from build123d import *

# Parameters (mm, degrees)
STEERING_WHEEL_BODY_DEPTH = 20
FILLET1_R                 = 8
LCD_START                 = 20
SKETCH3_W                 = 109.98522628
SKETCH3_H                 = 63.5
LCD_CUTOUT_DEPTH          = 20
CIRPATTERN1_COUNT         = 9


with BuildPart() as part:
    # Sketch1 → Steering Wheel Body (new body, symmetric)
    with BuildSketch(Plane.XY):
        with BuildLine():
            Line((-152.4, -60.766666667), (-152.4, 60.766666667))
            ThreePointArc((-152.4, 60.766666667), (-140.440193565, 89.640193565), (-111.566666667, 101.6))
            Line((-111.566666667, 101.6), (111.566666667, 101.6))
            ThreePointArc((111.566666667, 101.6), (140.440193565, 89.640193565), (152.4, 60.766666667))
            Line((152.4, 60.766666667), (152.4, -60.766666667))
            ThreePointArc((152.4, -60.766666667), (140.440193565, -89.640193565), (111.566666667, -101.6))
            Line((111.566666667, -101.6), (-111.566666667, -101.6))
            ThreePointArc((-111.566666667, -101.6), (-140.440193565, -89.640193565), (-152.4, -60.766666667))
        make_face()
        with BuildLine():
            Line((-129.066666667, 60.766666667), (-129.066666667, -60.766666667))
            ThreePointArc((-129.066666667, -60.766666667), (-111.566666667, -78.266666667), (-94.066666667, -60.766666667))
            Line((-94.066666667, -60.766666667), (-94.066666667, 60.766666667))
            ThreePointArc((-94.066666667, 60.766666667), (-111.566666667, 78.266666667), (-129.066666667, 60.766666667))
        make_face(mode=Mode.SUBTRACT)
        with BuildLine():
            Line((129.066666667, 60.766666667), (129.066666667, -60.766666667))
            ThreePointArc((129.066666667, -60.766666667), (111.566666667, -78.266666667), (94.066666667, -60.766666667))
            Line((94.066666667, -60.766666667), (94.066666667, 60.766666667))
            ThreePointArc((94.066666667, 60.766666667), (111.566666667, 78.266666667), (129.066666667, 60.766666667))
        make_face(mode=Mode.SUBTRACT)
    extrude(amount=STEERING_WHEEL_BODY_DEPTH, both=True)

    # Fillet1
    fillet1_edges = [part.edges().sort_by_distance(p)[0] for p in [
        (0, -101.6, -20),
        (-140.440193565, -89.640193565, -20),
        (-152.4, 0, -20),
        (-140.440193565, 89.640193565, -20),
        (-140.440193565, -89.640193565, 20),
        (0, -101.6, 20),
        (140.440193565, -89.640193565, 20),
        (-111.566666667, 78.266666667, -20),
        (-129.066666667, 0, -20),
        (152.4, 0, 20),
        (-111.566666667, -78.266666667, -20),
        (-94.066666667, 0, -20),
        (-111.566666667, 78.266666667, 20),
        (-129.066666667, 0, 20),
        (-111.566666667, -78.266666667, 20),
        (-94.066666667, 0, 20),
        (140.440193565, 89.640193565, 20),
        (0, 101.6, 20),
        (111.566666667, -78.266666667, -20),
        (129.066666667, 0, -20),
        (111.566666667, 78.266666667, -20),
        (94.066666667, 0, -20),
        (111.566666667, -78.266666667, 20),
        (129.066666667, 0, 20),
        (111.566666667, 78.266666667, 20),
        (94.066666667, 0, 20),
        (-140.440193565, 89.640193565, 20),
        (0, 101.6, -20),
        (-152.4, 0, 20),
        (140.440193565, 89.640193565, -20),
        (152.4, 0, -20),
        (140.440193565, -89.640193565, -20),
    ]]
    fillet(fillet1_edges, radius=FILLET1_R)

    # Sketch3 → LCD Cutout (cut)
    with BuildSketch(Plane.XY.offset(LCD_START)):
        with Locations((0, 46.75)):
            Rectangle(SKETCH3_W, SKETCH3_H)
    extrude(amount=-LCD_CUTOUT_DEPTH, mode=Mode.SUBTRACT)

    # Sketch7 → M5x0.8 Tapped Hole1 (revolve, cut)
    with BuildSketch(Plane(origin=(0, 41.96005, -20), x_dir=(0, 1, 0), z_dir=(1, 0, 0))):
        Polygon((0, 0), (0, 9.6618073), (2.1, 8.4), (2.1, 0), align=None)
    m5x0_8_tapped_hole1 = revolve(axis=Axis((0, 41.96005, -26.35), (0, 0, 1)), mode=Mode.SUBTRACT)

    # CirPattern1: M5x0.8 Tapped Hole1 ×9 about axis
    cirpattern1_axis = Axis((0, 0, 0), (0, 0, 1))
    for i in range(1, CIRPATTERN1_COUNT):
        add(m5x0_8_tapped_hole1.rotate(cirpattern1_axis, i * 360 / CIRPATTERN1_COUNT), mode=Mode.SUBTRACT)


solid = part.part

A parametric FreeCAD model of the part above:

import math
import FreeCAD as App
import Part
import Sketcher
Q = App.Units.Quantity


def edges_at(feature, points):
    """Names of the edges that pass closest to the given points."""
    edges = feature.Shape.Edges
    near = lambda p: min(range(len(edges)), key=lambda i: edges[i].distToShape(Part.Vertex(*p))[0])
    return sorted({f"Edge{near(p) + 1}" for p in points})

doc = App.newDocument("Part")
body = doc.addObject("PartDesign::Body", "Body")

sketch1 = doc.addObject("Sketcher::SketchObject", "Sketch")
body.addObject(sketch1)
sketch1.AttachmentSupport = (doc.XY_Plane, [""])
sketch1.MapMode = "FlatFace"
sketch1.addGeometry([
    Part.LineSegment(App.Vector(-152.4, 60.766667, 0), App.Vector(-152.4, -60.766667, 0)),
    Part.ArcOfCircle(Part.Circle(App.Vector(-111.566667, -60.766667, 0), App.Vector(0, 0, 1), 40.833333), math.radians(-180), math.radians(-90)),
    Part.LineSegment(App.Vector(-111.566667, -101.6, 0), App.Vector(111.566667, -101.6, 0)),
    Part.ArcOfCircle(Part.Circle(App.Vector(111.566667, -60.766667, 0), App.Vector(0, 0, 1), 40.833333), math.radians(-90), math.radians(0)),
    Part.LineSegment(App.Vector(152.4, -60.766667, 0), App.Vector(152.4, 60.766667, 0)),
    Part.ArcOfCircle(Part.Circle(App.Vector(111.566667, 60.766667, 0), App.Vector(0, 0, 1), 40.833333), math.radians(0), math.radians(90)),
    Part.LineSegment(App.Vector(111.566667, 101.6, 0), App.Vector(-111.566667, 101.6, 0)),
    Part.ArcOfCircle(Part.Circle(App.Vector(-111.566667, 60.766667, 0), App.Vector(0, 0, 1), 40.833333), math.radians(90), math.radians(180)),
    Part.LineSegment(App.Vector(129.066667, 60.766667, 0), App.Vector(129.066667, -60.766667, 0)),
    Part.ArcOfCircle(Part.Circle(App.Vector(111.566667, -60.766667, 0), App.Vector(0, 0, 1), 17.5), math.radians(180), math.radians(360)),
    Part.LineSegment(App.Vector(94.066667, -60.766667, 0), App.Vector(94.066667, 60.766667, 0)),
    Part.ArcOfCircle(Part.Circle(App.Vector(111.566667, 60.766667, 0), App.Vector(0, 0, 1), 17.5), math.radians(0), math.radians(180)),
    Part.ArcOfCircle(Part.Circle(App.Vector(-111.566667, 60.766667, 0), App.Vector(0, 0, 1), 17.5), math.radians(0), math.radians(180)),
    Part.LineSegment(App.Vector(-94.066667, 60.766667, 0), App.Vector(-94.066667, -60.766667, 0)),
    Part.ArcOfCircle(Part.Circle(App.Vector(-111.566667, -60.766667, 0), App.Vector(0, 0, 1), 17.5), math.radians(180), math.radians(360)),
    Part.LineSegment(App.Vector(-129.066667, -60.766667, 0), App.Vector(-129.066667, 60.766667, 0)),
], False)
sketch1.addConstraint([
    Sketcher.Constraint("Tangent", 0, 2, 1, 1),
    Sketcher.Constraint("Tangent", 1, 2, 2, 1),
    Sketcher.Constraint("Tangent", 2, 2, 3, 1),
    Sketcher.Constraint("Tangent", 3, 2, 4, 1),
    Sketcher.Constraint("Tangent", 4, 2, 5, 1),
    Sketcher.Constraint("Tangent", 5, 2, 6, 1),
    Sketcher.Constraint("Tangent", 6, 2, 7, 1),
    Sketcher.Constraint("Tangent", 7, 2, 0, 1),
    Sketcher.Constraint("Tangent", 8, 2, 9, 2),
    Sketcher.Constraint("Tangent", 9, 1, 10, 1),
    Sketcher.Constraint("Tangent", 10, 2, 11, 2),
    Sketcher.Constraint("Tangent", 11, 1, 8, 1),
    Sketcher.Constraint("Tangent", 12, 1, 13, 1),
    Sketcher.Constraint("Tangent", 13, 2, 14, 2),
    Sketcher.Constraint("Tangent", 14, 1, 15, 1),
    Sketcher.Constraint("Tangent", 15, 2, 12, 2),
    Sketcher.Constraint("Vertical", 0),
    Sketcher.Constraint("Horizontal", 2),
    Sketcher.Constraint("Vertical", 4),
    Sketcher.Constraint("Horizontal", 6),
    Sketcher.Constraint("Vertical", 8),
    Sketcher.Constraint("Vertical", 10),
    Sketcher.Constraint("Vertical", 13),
    Sketcher.Constraint("Vertical", 15),
    Sketcher.Constraint("Coincident", 9, 3, 3, 3),
    Sketcher.Constraint("Coincident", 11, 3, 5, 3),
    Sketcher.Constraint("Coincident", 12, 3, 7, 3),
    Sketcher.Constraint("Coincident", 14, 3, 1, 3),
    Sketcher.Constraint("Equal", 1, 3),
    Sketcher.Constraint("Equal", 11, 12),
    Sketcher.Constraint("Symmetric", 1, 3, 5, 3, -1, 1),
    Sketcher.Constraint("Radius", 9, Q("17.5 mm")),
    Sketcher.Constraint("DistanceX", 0, 2, -1, 1, Q("152.4 mm")),
    Sketcher.Constraint("DistanceY", 1, 2, -1, 1, Q("101.6 mm")),
    Sketcher.Constraint("Radius", 1, Q("40.833333 mm")),
])
pad1 = doc.addObject("PartDesign::Pad", "Pad")
body.addObject(pad1)
pad1.Profile = sketch1
pad1.Length = 40
pad1.Midplane = True
doc.recompute()

fillet = doc.addObject("PartDesign::Fillet", "Fillet")
body.addObject(fillet)
fillet.Base = (pad1, edges_at(pad1, [
    (0, -101.6, -20),
    (-140.44, -89.64, -20),
    (-152.4, 0, -20),
    (-140.44, 89.64, -20),
    (-140.44, -89.64, 20),
    (0, -101.6, 20),
    (140.44, -89.64, 20),
    (-111.567, 78.267, -20),
    (-129.067, 0, -20),
    (152.4, 0, 20),
    (-111.567, -78.267, -20),
    (-94.067, 0, -20),
    (-111.567, 78.267, 20),
    (-129.067, 0, 20),
    (-111.567, -78.267, 20),
    (-94.067, 0, 20),
    (140.44, 89.64, 20),
    (0, 101.6, 20),
    (111.567, -78.267, -20),
    (129.067, 0, -20),
    (111.567, 78.267, -20),
    (94.067, 0, -20),
    (111.567, -78.267, 20),
    (129.067, 0, 20),
    (111.567, 78.267, 20),
    (94.067, 0, 20),
    (-140.44, 89.64, 20),
    (0, 101.6, -20),
    (-152.4, 0, 20),
    (140.44, 89.64, -20),
    (152.4, 0, -20),
    (140.44, -89.64, -20),
]))
fillet.Radius = 8

sketch2 = doc.addObject("Sketcher::SketchObject", "Sketch001")
body.addObject(sketch2)
sketch2.AttachmentSupport = (doc.XY_Plane, [""])
sketch2.MapMode = "FlatFace"
sketch2.AttachmentOffset = App.Placement(App.Vector(0, 0, 20), App.Rotation())
sketch2.addGeometry([
    Part.LineSegment(App.Vector(-54.992613, 78.5, 0), App.Vector(-54.992613, 15, 0)),
    Part.LineSegment(App.Vector(-54.992613, 15, 0), App.Vector(54.992613, 15, 0)),
    Part.LineSegment(App.Vector(54.992613, 15, 0), App.Vector(54.992613, 78.5, 0)),
    Part.LineSegment(App.Vector(54.992613, 78.5, 0), App.Vector(-54.992613, 78.5, 0)),
], False)
sketch2.addConstraint([
    Sketcher.Constraint("Coincident", 0, 2, 1, 1),
    Sketcher.Constraint("Coincident", 1, 2, 2, 1),
    Sketcher.Constraint("Coincident", 2, 2, 3, 1),
    Sketcher.Constraint("Coincident", 3, 2, 0, 1),
    Sketcher.Constraint("Vertical", 0),
    Sketcher.Constraint("Horizontal", 1),
    Sketcher.Constraint("Vertical", 2),
    Sketcher.Constraint("Horizontal", 3),
    Sketcher.Constraint("DistanceY", 0, 2, 0, 1, Q("63.5 mm")),
    Sketcher.Constraint("DistanceY", -1, 1, 0, 2, Q("15 mm")),
    Sketcher.Constraint("DistanceX", 1, 1, 1, 2, Q("109.985226 mm")),
    Sketcher.Constraint("DistanceX", 0, 2, -1, 1, Q("54.992613 mm")),
])
pocket1 = doc.addObject("PartDesign::Pocket", "Pocket")
body.addObject(pocket1)
pocket1.Profile = sketch2
pocket1.Length = 20

sketch3 = doc.addObject("Sketcher::SketchObject", "Sketch002")
body.addObject(sketch3)
sketch3.AttachmentSupport = (doc.YZ_Plane, [""])
sketch3.MapMode = "FlatFace"
sketch3.addGeometry([
    Part.LineSegment(App.Vector(41.96005, -10.338193, 0), App.Vector(41.96005, -20, 0)),
    Part.LineSegment(App.Vector(41.96005, -20, 0), App.Vector(44.06005, -20, 0)),
    Part.LineSegment(App.Vector(44.06005, -20, 0), App.Vector(44.06005, -11.6, 0)),
    Part.LineSegment(App.Vector(44.06005, -11.6, 0), App.Vector(41.96005, -10.338193, 0)),
], False)
sketch3.addGeometry(Part.LineSegment(App.Vector(41.96005, -20, 0), App.Vector(41.96005, -10.338193, 0)), True)
sketch3.addConstraint([
    Sketcher.Constraint("Coincident", 0, 2, 1, 1),
    Sketcher.Constraint("Coincident", 1, 2, 2, 1),
    Sketcher.Constraint("Coincident", 2, 2, 3, 1),
    Sketcher.Constraint("Coincident", 3, 2, 0, 1),
    Sketcher.Constraint("Vertical", 0),
    Sketcher.Constraint("Horizontal", 1),
    Sketcher.Constraint("Vertical", 2),
    Sketcher.Constraint("Vertical", 4),
    Sketcher.Constraint("Coincident", 4, 1, 0, 2),
    Sketcher.Constraint("Equal", 0, 4),
    Sketcher.Constraint("Angle", 3, Q("149 deg")),
    Sketcher.Constraint("DistanceX", 1, 1, 1, 2, Q("2.1 mm")),
    Sketcher.Constraint("DistanceY", 2, 1, 2, 2, Q("8.4 mm")),
    Sketcher.Constraint("DistanceY", 0, 2, -1, 1, Q("20 mm")),
    Sketcher.Constraint("DistanceX", -1, 1, 0, 2, Q("41.96005 mm")),
])
groove = doc.addObject("PartDesign::Groove", "Groove")
body.addObject(groove)
groove.Profile = sketch3
groove.ReferenceAxis = (sketch3, ["Axis0"])
groove.Angle = 360
doc.recompute()

polarpattern = doc.addObject("PartDesign::PolarPattern", "PolarPattern")
body.addObject(polarpattern)
polarpattern.Originals = [groove]
polarpattern.Axis = (doc.Z_Axis, [""])
polarpattern.Angle = 360
polarpattern.Occurrences = 9
body.Tip = polarpattern

doc.recompute()
